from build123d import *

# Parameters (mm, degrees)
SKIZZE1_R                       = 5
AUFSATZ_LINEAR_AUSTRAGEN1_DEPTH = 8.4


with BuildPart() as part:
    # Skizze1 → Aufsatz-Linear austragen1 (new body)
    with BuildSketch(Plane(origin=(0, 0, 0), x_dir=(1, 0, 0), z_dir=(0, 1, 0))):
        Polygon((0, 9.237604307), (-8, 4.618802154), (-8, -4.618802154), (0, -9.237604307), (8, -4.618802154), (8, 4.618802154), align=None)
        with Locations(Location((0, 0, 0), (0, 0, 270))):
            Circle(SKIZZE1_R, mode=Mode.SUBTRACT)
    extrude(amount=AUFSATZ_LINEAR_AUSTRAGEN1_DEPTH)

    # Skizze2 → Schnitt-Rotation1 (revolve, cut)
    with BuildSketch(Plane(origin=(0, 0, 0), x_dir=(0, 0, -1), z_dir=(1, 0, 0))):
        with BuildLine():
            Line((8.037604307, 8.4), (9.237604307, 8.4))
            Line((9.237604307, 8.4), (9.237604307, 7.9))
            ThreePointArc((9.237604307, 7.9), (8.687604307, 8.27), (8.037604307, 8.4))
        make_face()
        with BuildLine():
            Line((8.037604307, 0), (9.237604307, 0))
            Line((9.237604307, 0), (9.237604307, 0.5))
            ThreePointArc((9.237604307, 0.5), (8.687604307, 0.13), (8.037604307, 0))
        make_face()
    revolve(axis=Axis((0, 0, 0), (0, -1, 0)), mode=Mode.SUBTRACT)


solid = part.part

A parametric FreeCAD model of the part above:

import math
import FreeCAD as App
import Part
import Sketcher
Q = App.Units.Quantity

doc = App.newDocument("Part")
params = doc.addObject("Spreadsheet::Sheet", "Params")
for row, (alias, value) in enumerate([
    ("sketch1_diameter", "10 mm"),
    ("pad1_length", "8.4 mm"),
    ("sketch2_radius", "1.69 mm"),
    ("sketch2_width", "0.5 mm"),
    ("groove_angle", "360 deg"),
], start=1):
    params.set(f"A{row}", alias)
    params.set(f"B{row}", "=" + value)
    params.setAlias(f"B{row}", alias)

body = doc.addObject("PartDesign::Body", "Body")

sketch1 = doc.addObject("Sketcher::SketchObject", "Sketch")
body.addObject(sketch1)
sketch1.AttachmentSupport = (doc.XZ_Plane, [""])
sketch1.MapMode = "FlatFace"
sketch1.addGeometry(Part.LineSegment(App.Vector(0, -9, 0), App.Vector(-8, -5, 0)), False)
sketch1.addGeometry(Part.LineSegment(App.Vector(-8, -5, 0), App.Vector(-8, 5, 0)), False)
sketch1.addGeometry(Part.LineSegment(App.Vector(-8, 5, 0), App.Vector(0, 9, 0)), False)
sketch1.addGeometry(Part.LineSegment(App.Vector(0, 9, 0), App.Vector(8, 5, 0)), False)
sketch1.addGeometry(Part.LineSegment(App.Vector(8, 5, 0), App.Vector(8, -5, 0)), False)
sketch1.addGeometry(Part.LineSegment(App.Vector(8, -5, 0), App.Vector(0, -9, 0)), False)
sketch1.addGeometry(Part.Circle(App.Vector(0, 0, 0), App.Vector(0, 0, 1), 5), False)
sketch1.addConstraint(Sketcher.Constraint("Coincident", 0, 2, 1, 1))
sketch1.addConstraint(Sketcher.Constraint("Coincident", 1, 2, 2, 1))
sketch1.addConstraint(Sketcher.Constraint("Coincident", 2, 2, 3, 1))
sketch1.addConstraint(Sketcher.Constraint("Coincident", 3, 2, 4, 1))
sketch1.addConstraint(Sketcher.Constraint("Coincident", 4, 2, 5, 1))
sketch1.addConstraint(Sketcher.Constraint("Coincident", 5, 2, 0, 1))
sketch1.addConstraint(Sketcher.Constraint("Vertical", 1))
sketch1.addConstraint(Sketcher.Constraint("Vertical", 4))
sketch1.addConstraint(Sketcher.Constraint("Coincident", 6, 3, -1, 1))
sketch1.addConstraint(Sketcher.Constraint("Symmetric", 0, 2, 3, 2, -1, 1))
sketch1.addConstraint(Sketcher.Constraint("Symmetric", 2, 2, 5, 2, -1, 1))
sketch1.addConstraint(Sketcher.Constraint("PointOnObject", 2, 2, -2))
sketch1.addConstraint(Sketcher.Constraint("Parallel", 2, 5))
sketch1.addConstraint(Sketcher.Constraint("Horizontal", 1, 2, 3, 2))
sketch1.addConstraint(Sketcher.Constraint("Diameter", 6, Q("10 mm")))
sketch1.addConstraint(Sketcher.Constraint("Angle", 0, Q("150 deg")))
sketch1.addConstraint(Sketcher.Constraint("DistanceX", 0, 2, -1, 1, Q("8 mm")))
sketch1.addConstraint(Sketcher.Constraint("DistanceY", 1, 1, 1, 2, Q("9.237604 mm")))
sketch1.setExpression("Constraints[14]", "Params.sketch1_diameter")
pad1 = doc.addObject("PartDesign::Pad", "Pad")
body.addObject(pad1)
pad1.Profile = sketch1
pad1.setExpression("Length", "Params.pad1_length")
pad1.Reversed = True

sketch2 = doc.addObject("Sketcher::SketchObject", "Sketch001")
body.addObject(sketch2)
sketch2.AttachmentSupport = (doc.YZ_Plane, [""])
sketch2.MapMode = "FlatFace"
sketch2.addGeometry(Part.LineSegment(App.Vector(8.4, -9.2, 0), App.Vector(8.4, -8, 0)), False)
sketch2.addGeometry(Part.ArcOfCircle(Part.Circle(App.Vector(6.7, -8, 0), App.Vector(0, 0, 1), 1.7), math.radians(-45), math.radians(0)), False)
sketch2.addGeometry(Part.LineSegment(App.Vector(7.9, -9.2, 0), App.Vector(8.4, -9.2, 0)), False)
sketch2.addGeometry(Part.LineSegment(App.Vector(0, -8, 0), App.Vector(0, -9.2, 0)), False)
sketch2.addGeometry(Part.LineSegment(App.Vector(0, -9.2, 0), App.Vector(0.5, -9.2, 0)), False)
sketch2.addGeometry(Part.ArcOfCircle(Part.Circle(App.Vector(1.7, -8, 0), App.Vector(0, 0, 1), 1.7), math.radians(180), math.radians(225)), False)
sketch2.addConstraint(Sketcher.Constraint("Tangent", 0, 2, 1, 2))
sketch2.addConstraint(Sketcher.Constraint("Coincident", 1, 1, 2, 1))
sketch2.addConstraint(Sketcher.Constraint("Coincident", 2, 2, 0, 1))
sketch2.addConstraint(Sketcher.Constraint("Coincident", 3, 2, 4, 1))
sketch2.addConstraint(Sketcher.Constraint("Coincident", 4, 2, 5, 2))
sketch2.addConstraint(Sketcher.Constraint("Tangent", 5, 1, 3, 1))
sketch2.addConstraint(Sketcher.Constraint("Vertical", 0))
sketch2.addConstraint(Sketcher.Constraint("Horizontal", 2))
sketch2.addConstraint(Sketcher.Constraint("Vertical", 3))
sketch2.addConstraint(Sketcher.Constraint("Horizontal", 4))
sketch2.addConstraint(Sketcher.Constraint("Equal", 1, 5))
sketch2.addConstraint(Sketcher.Constraint("PointOnObject", 3, 2, -2))
sketch2.addConstraint(Sketcher.Constraint("Horizontal", 1, 3, 5, 3))
sketch2.addConstraint(Sketcher.Constraint("Horizontal", 2, 2, 3, 2))
sketch2.addConstraint(Sketcher.Constraint("Radius", 1, Q("1.69 mm")))
sketch2.addConstraint(Sketcher.Constraint("DistanceX", 2, 1, 2, 2, Q("0.5 mm")))
sketch2.addConstraint(Sketcher.Constraint("DistanceX", -1, 1, 0, 2, Q("8.4 mm")))
sketch2.addConstraint(Sketcher.Constraint("DistanceY", 1, 3, -1, 1, Q("8.037604 mm")))
sketch2.setExpression("Constraints[14]", "Params.sketch2_radius")
sketch2.setExpression("Constraints[15]", "Params.sketch2_width")
groove = doc.addObject("PartDesign::Groove", "Groove")
body.addObject(groove)
groove.Profile = sketch2
groove.ReferenceAxis = (sketch2, ["H_Axis"])
groove.setExpression("Angle", "Params.groove_angle")

doc.recompute()
